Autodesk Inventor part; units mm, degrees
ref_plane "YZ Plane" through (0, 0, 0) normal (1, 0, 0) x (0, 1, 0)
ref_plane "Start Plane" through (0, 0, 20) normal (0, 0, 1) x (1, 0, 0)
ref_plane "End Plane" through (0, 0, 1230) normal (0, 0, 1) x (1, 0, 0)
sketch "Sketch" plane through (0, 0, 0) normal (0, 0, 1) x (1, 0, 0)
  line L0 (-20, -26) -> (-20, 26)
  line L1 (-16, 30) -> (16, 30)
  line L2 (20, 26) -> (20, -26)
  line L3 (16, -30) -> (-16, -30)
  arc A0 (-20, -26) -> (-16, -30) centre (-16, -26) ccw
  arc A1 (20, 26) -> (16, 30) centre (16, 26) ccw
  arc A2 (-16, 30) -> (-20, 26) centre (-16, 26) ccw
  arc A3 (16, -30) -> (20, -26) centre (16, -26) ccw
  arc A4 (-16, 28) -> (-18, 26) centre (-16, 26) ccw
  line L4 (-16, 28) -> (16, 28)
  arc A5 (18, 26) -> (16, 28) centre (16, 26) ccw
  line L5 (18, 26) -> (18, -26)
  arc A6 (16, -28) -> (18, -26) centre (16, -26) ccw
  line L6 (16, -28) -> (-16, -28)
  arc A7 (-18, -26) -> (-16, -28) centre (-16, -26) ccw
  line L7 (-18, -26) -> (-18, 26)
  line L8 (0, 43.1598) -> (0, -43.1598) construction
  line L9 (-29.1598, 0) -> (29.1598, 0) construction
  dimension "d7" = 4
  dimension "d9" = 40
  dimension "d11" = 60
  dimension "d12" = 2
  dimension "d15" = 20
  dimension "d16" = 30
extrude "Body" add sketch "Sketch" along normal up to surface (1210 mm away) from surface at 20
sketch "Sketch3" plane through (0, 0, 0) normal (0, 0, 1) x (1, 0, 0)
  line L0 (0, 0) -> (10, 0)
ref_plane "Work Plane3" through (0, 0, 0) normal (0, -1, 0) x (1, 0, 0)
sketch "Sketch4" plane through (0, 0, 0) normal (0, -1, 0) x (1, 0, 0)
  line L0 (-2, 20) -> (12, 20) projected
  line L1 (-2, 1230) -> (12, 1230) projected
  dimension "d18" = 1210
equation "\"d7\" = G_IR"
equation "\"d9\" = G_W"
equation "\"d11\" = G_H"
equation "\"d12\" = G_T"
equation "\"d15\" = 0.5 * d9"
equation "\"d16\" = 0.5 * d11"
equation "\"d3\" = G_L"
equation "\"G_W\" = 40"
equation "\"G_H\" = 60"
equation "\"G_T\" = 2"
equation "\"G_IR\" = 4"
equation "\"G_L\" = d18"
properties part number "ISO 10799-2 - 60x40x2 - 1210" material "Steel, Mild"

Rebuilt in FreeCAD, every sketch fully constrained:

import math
import FreeCAD as App
import Part
import Sketcher

doc = App.newDocument("Part")
body = doc.addObject("PartDesign::Body", "Body")

sketch1 = doc.addObject("Sketcher::SketchObject", "Sketch")
body.addObject(sketch1)
sketch1.AttachmentSupport = (doc.XY_Plane, [""])
sketch1.MapMode = "FlatFace"
sketch1.AttachmentOffset = App.Placement(App.Vector(0, 0, 20), App.Rotation())
sketch1.addGeometry(Part.LineSegment(App.Vector(-20, 26, 0), App.Vector(-20, -26, 0)), False)
sketch1.addGeometry(Part.ArcOfCircle(Part.Circle(App.Vector(-16, -26, 0), App.Vector(0, 0, 1), 4), math.radians(180), math.radians(270)), False)
sketch1.addGeometry(Part.LineSegment(App.Vector(-16, -30, 0), App.Vector(16, -30, 0)), False)
sketch1.addGeometry(Part.ArcOfCircle(Part.Circle(App.Vector(16, -26, 0), App.Vector(0, 0, 1), 4), math.radians(-90), math.radians(0)), False)
sketch1.addGeometry(Part.LineSegment(App.Vector(20, -26, 0), App.Vector(20, 26, 0)), False)
sketch1.addGeometry(Part.ArcOfCircle(Part.Circle(App.Vector(16, 26, 0), App.Vector(0, 0, 1), 4), math.radians(0), math.radians(90)), False)
sketch1.addGeometry(Part.LineSegment(App.Vector(16, 30, 0), App.Vector(-16, 30, 0)), False)
sketch1.addGeometry(Part.ArcOfCircle(Part.Circle(App.Vector(-16, 26, 0), App.Vector(0, 0, 1), 4), math.radians(90), math.radians(180)), False)
sketch1.addGeometry(Part.ArcOfCircle(Part.Circle(App.Vector(-16, 26, 0), App.Vector(0, 0, 1), 2), math.radians(90), math.radians(180)), False)
sketch1.addGeometry(Part.LineSegment(App.Vector(-16, 28, 0), App.Vector(16, 28, 0)), False)
sketch1.addGeometry(Part.ArcOfCircle(Part.Circle(App.Vector(16, 26, 0), App.Vector(0, 0, 1), 2), math.radians(0), math.radians(90)), False)
sketch1.addGeometry(Part.LineSegment(App.Vector(18, 26, 0), App.Vector(18, -26, 0)), False)
sketch1.addGeometry(Part.ArcOfCircle(Part.Circle(App.Vector(16, -26, 0), App.Vector(0, 0, 1), 2), math.radians(-90), math.radians(0)), False)
sketch1.addGeometry(Part.LineSegment(App.Vector(16, -28, 0), App.Vector(-16, -28, 0)), False)
sketch1.addGeometry(Part.ArcOfCircle(Part.Circle(App.Vector(-16, -26, 0), App.Vector(0, 0, 1), 2), math.radians(180), math.radians(270)), False)
sketch1.addGeometry(Part.LineSegment(App.Vector(-18, -26, 0), App.Vector(-18, 26, 0)), False)
sketch1.addConstraint(Sketcher.Constraint("Tangent", 0, 2, 1, 1))
sketch1.addConstraint(Sketcher.Constraint("Tangent", 1, 2, 2, 1))
sketch1.addConstraint(Sketcher.Constraint("Tangent", 2, 2, 3, 1))
sketch1.addConstraint(Sketcher.Constraint("Tangent", 3, 2, 4, 1))
sketch1.addConstraint(Sketcher.Constraint("Tangent", 4, 2, 5, 1))
sketch1.addConstraint(Sketcher.Constraint("Tangent", 5, 2, 6, 1))
sketch1.addConstraint(Sketcher.Constraint("Tangent", 6, 2, 7, 1))
sketch1.addConstraint(Sketcher.Constraint("Tangent", 7, 2, 0, 1))
sketch1.addConstraint(Sketcher.Constraint("Tangent", 8, 1, 9, 1))
sketch1.addConstraint(Sketcher.Constraint("Tangent", 9, 2, 10, 2))
sketch1.addConstraint(Sketcher.Constraint("Tangent", 10, 1, 11, 1))
sketch1.addConstraint(Sketcher.Constraint("Tangent", 11, 2, 12, 2))
sketch1.addConstraint(Sketcher.Constraint("Tangent", 12, 1, 13, 1))
sketch1.addConstraint(Sketcher.Constraint("Tangent", 13, 2, 14, 2))
sketch1.addConstraint(Sketcher.Constraint("Tangent", 14, 1, 15, 1))
sketch1.addConstraint(Sketcher.Constraint("Tangent", 15, 2, 8, 2))
sketch1.addConstraint(Sketcher.Constraint("Vertical", 0))
sketch1.addConstraint(Sketcher.Constraint("Horizontal", 2))
sketch1.addConstraint(Sketcher.Constraint("Vertical", 4))
sketch1.addConstraint(Sketcher.Constraint("Horizontal", 6))
sketch1.addConstraint(Sketcher.Constraint("Horizontal", 9))
sketch1.addConstraint(Sketcher.Constraint("Vertical", 11))
sketch1.addConstraint(Sketcher.Constraint("Horizontal", 13))
sketch1.addConstraint(Sketcher.Constraint("Vertical", 15))
sketch1.addConstraint(Sketcher.Constraint("Coincident", 8, 3, 7, 3))
sketch1.addConstraint(Sketcher.Constraint("Coincident", 10, 3, 5, 3))
sketch1.addConstraint(Sketcher.Constraint("Coincident", 12, 3, 3, 3))
sketch1.addConstraint(Sketcher.Constraint("Equal", 1, 3))
sketch1.addConstraint(Sketcher.Constraint("Equal", 3, 5))
sketch1.addConstraint(Sketcher.Constraint("Equal", 5, 7))
sketch1.addConstraint(Sketcher.Constraint("Equal", 12, 14))
sketch1.addConstraint(Sketcher.Constraint("Symmetric", 1, 3, 5, 3, -1, 1))
sketch1.addConstraint(Sketcher.Constraint("Radius", 1, 4.0))
sketch1.addConstraint(Sketcher.Constraint("Radius", 8, 2.0))
sketch1.addConstraint(Sketcher.Constraint("DistanceX", 0, 2, -1, 1, 20.0))
sketch1.addConstraint(Sketcher.Constraint("DistanceY", 1, 2, -1, 1, 30.0))
pad1 = doc.addObject("PartDesign::Pad", "Pad")
body.addObject(pad1)
pad1.Profile = sketch1
pad1.Length = 1210

doc.recompute()
